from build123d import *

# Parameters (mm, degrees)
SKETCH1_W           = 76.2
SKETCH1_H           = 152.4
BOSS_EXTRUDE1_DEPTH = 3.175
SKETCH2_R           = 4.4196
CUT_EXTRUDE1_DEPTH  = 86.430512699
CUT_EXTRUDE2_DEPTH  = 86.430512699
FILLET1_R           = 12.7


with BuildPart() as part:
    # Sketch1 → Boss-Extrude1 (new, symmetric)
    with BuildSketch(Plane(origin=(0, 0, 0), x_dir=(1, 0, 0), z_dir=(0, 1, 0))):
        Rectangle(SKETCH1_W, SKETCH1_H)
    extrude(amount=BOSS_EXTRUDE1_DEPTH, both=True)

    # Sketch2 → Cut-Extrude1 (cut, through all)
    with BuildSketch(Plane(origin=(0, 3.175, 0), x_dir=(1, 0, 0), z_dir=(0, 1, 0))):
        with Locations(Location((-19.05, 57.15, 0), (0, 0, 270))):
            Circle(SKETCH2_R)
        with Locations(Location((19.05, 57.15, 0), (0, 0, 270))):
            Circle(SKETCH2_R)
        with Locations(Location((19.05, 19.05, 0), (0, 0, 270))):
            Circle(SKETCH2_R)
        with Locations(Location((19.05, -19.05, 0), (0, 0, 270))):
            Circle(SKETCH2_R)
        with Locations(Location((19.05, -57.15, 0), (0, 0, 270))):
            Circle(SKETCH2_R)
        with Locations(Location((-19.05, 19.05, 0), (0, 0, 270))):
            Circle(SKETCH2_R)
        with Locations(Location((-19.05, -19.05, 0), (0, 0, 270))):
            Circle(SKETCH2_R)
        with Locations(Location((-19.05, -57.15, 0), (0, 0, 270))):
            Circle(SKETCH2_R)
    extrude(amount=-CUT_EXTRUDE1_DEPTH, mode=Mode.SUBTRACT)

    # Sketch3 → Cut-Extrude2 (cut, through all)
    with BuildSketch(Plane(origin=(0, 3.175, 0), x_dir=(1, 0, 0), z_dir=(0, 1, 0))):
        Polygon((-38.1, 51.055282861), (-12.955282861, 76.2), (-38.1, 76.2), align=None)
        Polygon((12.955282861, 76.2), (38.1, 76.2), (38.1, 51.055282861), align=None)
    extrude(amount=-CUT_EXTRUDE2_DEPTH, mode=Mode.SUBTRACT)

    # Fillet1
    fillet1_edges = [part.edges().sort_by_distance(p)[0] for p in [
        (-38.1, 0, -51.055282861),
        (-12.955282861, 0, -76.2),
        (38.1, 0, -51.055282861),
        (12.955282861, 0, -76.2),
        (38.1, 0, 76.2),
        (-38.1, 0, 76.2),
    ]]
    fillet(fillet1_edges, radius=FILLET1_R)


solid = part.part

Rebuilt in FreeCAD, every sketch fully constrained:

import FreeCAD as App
import Part
import Sketcher
Q = App.Units.Quantity


def edges_at(feature, points):
    """Names of the edges that pass closest to the given points."""
    edges = feature.Shape.Edges
    near = lambda p: min(range(len(edges)), key=lambda i: edges[i].distToShape(Part.Vertex(*p))[0])
    return sorted({f"Edge{near(p) + 1}" for p in points})

doc = App.newDocument("Part")
body = doc.addObject("PartDesign::Body", "Body")

# Sketch on XZ plane
sketch1 = body.newObject("Sketcher::SketchObject", "Sketch")
sketch1.AttachmentSupport = (doc.getObject("XZ_Plane"), [""])
sketch1.MapMode = "FlatFace"
sketch1.addGeometry(Part.LineSegment(App.Vector(-38.1, -76.2, 0), App.Vector(-38.1, 76.2, 0)), False)
sketch1.addGeometry(Part.LineSegment(App.Vector(-38.1, 76.2, 0), App.Vector(38.1, 76.2, 0)), False)
sketch1.addGeometry(Part.LineSegment(App.Vector(38.1, 76.2, 0), App.Vector(38.1, -76.2, 0)), False)
sketch1.addGeometry(Part.LineSegment(App.Vector(38.1, -76.2, 0), App.Vector(-38.1, -76.2, 0)), False)
sketch1.addConstraint(Sketcher.Constraint("Coincident", 0, 2, 1, 1))
sketch1.addConstraint(Sketcher.Constraint("Coincident", 1, 2, 2, 1))
sketch1.addConstraint(Sketcher.Constraint("Coincident", 2, 2, 3, 1))
sketch1.addConstraint(Sketcher.Constraint("Coincident", 3, 2, 0, 1))
sketch1.addConstraint(Sketcher.Constraint("Vertical", 0))
sketch1.addConstraint(Sketcher.Constraint("Horizontal", 1))
sketch1.addConstraint(Sketcher.Constraint("Vertical", 2))
sketch1.addConstraint(Sketcher.Constraint("Horizontal", 3))
sketch1.addConstraint(Sketcher.Constraint("Symmetric", 0, 2, 2, 2, -1, 1))
sketch1.addConstraint(Sketcher.Constraint("DistanceX", 1, 1, 1, 2, Q("3 in")))
sketch1.addConstraint(Sketcher.Constraint("DistanceY", 0, 1, 0, 2, Q("6 in")))
pad1 = body.newObject("PartDesign::Pad", "Pad")
pad1.Profile = sketch1
pad1.Length = Q("0.25 in")
pad1.Midplane = True

# Sketch on XZ plane
sketch2 = body.newObject("Sketcher::SketchObject", "Sketch001")
sketch2.AttachmentSupport = (doc.getObject("XZ_Plane"), [""])
sketch2.MapMode = "FlatFace"
sketch2.AttachmentOffset = App.Placement(App.Vector(0, 0, -0.125 * 25.4), App.Rotation())
sketch2.addGeometry(Part.Circle(App.Vector(-19.05, -57.15, 0), App.Vector(0, 0, 1), 4.4196), False)
sketch2.addGeometry(Part.Circle(App.Vector(19.05, -57.15, 0), App.Vector(0, 0, 1), 4.4196), False)
sketch2.addGeometry(Part.Circle(App.Vector(19.05, -19.05, 0), App.Vector(0, 0, 1), 4.4196), False)
sketch2.addGeometry(Part.Circle(App.Vector(19.05, 19.05, 0), App.Vector(0, 0, 1), 4.4196), False)
sketch2.addGeometry(Part.Circle(App.Vector(19.05, 57.15, 0), App.Vector(0, 0, 1), 4.4196), False)
sketch2.addGeometry(Part.Circle(App.Vector(-19.05, -19.05, 0), App.Vector(0, 0, 1), 4.4196), False)
sketch2.addGeometry(Part.Circle(App.Vector(-19.05, 19.05, 0), App.Vector(0, 0, 1), 4.4196), False)
sketch2.addGeometry(Part.Circle(App.Vector(-19.05, 57.15, 0), App.Vector(0, 0, 1), 4.4196), False)
sketch2.addConstraint(Sketcher.Constraint("Equal", 0, 1))
sketch2.addConstraint(Sketcher.Constraint("Equal", 1, 2))
sketch2.addConstraint(Sketcher.Constraint("Equal", 2, 3))
sketch2.addConstraint(Sketcher.Constraint("Equal", 3, 4))
sketch2.addConstraint(Sketcher.Constraint("Equal", 4, 5))
sketch2.addConstraint(Sketcher.Constraint("Equal", 5, 6))
sketch2.addConstraint(Sketcher.Constraint("Equal", 6, 7))
sketch2.addConstraint(Sketcher.Constraint("Symmetric", 0, 3, 4, 3, -1, 1))
sketch2.addConstraint(Sketcher.Constraint("Symmetric", 3, 3, 5, 3, -1, 1))
sketch2.addConstraint(Sketcher.Constraint("Symmetric", 2, 3, 6, 3, -1, 1))
sketch2.addConstraint(Sketcher.Constraint("Symmetric", 1, 3, 7, 3, -1, 1))
sketch2.addConstraint(Sketcher.Constraint("Symmetric", 0, 3, 1, 3, -2))
sketch2.addConstraint(Sketcher.Constraint("Symmetric", 2, 3, 5, 3, -2))
sketch2.addConstraint(Sketcher.Constraint("Vertical", 1, 3, 2, 3))
sketch2.addConstraint(Sketcher.Constraint("Diameter", 0, Q("0.348 in")))
sketch2.addConstraint(Sketcher.Constraint("DistanceY", 1, 3, 3, 3, Q("3 in")))
sketch2.addConstraint(Sketcher.Constraint("DistanceX", 0, 3, 1, 3, Q("1.5 in")))
sketch2.addConstraint(Sketcher.Constraint("DistanceY", 1, 3, 2, 3, Q("1.5 in")))
pocket1 = body.newObject("PartDesign::Pocket", "Pocket")
pocket1.Profile = sketch2
pocket1.Type = "ThroughAll"
pocket1.Reversed = True

# Sketch on XZ plane
sketch3 = body.newObject("Sketcher::SketchObject", "Sketch002")
sketch3.AttachmentSupport = (doc.getObject("XZ_Plane"), [""])
sketch3.MapMode = "FlatFace"
sketch3.AttachmentOffset = App.Placement(App.Vector(0, 0, -0.125 * 25.4), App.Rotation())
sketch3.addGeometry(Part.LineSegment(App.Vector(-38.1, -51.055283, 0), App.Vector(-12.955283, -76.2, 0)), False)
sketch3.addGeometry(Part.LineSegment(App.Vector(-12.955283, -76.2, 0), App.Vector(-38.1, -76.2, 0)), False)
sketch3.addGeometry(Part.LineSegment(App.Vector(-38.1, -76.2, 0), App.Vector(-38.1, -51.055283, 0)), False)
sketch3.addGeometry(Part.LineSegment(App.Vector(38.1, -76.2, 0), App.Vector(12.955283, -76.2, 0)), False)
sketch3.addGeometry(Part.LineSegment(App.Vector(12.955283, -76.2, 0), App.Vector(38.1, -51.055283, 0)), False)
sketch3.addGeometry(Part.LineSegment(App.Vector(38.1, -51.055283, 0), App.Vector(38.1, -76.2, 0)), False)
sketch3.addConstraint(Sketcher.Constraint("Coincident", 0, 2, 1, 1))
sketch3.addConstraint(Sketcher.Constraint("Coincident", 1, 2, 2, 1))
sketch3.addConstraint(Sketcher.Constraint("Coincident", 2, 2, 0, 1))
sketch3.addConstraint(Sketcher.Constraint("Coincident", 3, 2, 4, 1))
sketch3.addConstraint(Sketcher.Constraint("Coincident", 4, 2, 5, 1))
sketch3.addConstraint(Sketcher.Constraint("Coincident", 5, 2, 3, 1))
sketch3.addConstraint(Sketcher.Constraint("Horizontal", 1))
sketch3.addConstraint(Sketcher.Constraint("Vertical", 2))
sketch3.addConstraint(Sketcher.Constraint("Horizontal", 3))
sketch3.addConstraint(Sketcher.Constraint("Vertical", 5))
sketch3.addConstraint(Sketcher.Constraint("Symmetric", 0, 2, 3, 2, -2))
sketch3.addConstraint(Sketcher.Constraint("Symmetric", 2, 2, 4, 2, -2))
sketch3.addConstraint(Sketcher.Constraint("Perpendicular", 0, 4))
sketch3.addConstraint(Sketcher.Constraint("DistanceY", 0, 2, -1, 1, Q("3 in")))
sketch3.addConstraint(Sketcher.Constraint("DistanceX", 2, 2, 4, 2, Q("3 in")))
sketch3.addConstraint(Sketcher.Constraint("Distance", 0, Q("1.4 in")))
pocket2 = body.newObject("PartDesign::Pocket", "Pocket001")
pocket2.Profile = sketch3
pocket2.Type = "ThroughAll"
pocket2.Reversed = True
doc.recompute()

fillet = body.newObject("PartDesign::Fillet", "Fillet")
fillet.Base = (pocket2, edges_at(pocket2, [
    (-38.1, 0, -51.055),
    (-12.955, 0, -76.2),
    (38.1, 0, -51.055),
    (12.955, 0, -76.2),
    (38.1, 0, 76.2),
    (-38.1, 0, 76.2),
]))
fillet.Radius = Q("0.5 in")

doc.recompute()
